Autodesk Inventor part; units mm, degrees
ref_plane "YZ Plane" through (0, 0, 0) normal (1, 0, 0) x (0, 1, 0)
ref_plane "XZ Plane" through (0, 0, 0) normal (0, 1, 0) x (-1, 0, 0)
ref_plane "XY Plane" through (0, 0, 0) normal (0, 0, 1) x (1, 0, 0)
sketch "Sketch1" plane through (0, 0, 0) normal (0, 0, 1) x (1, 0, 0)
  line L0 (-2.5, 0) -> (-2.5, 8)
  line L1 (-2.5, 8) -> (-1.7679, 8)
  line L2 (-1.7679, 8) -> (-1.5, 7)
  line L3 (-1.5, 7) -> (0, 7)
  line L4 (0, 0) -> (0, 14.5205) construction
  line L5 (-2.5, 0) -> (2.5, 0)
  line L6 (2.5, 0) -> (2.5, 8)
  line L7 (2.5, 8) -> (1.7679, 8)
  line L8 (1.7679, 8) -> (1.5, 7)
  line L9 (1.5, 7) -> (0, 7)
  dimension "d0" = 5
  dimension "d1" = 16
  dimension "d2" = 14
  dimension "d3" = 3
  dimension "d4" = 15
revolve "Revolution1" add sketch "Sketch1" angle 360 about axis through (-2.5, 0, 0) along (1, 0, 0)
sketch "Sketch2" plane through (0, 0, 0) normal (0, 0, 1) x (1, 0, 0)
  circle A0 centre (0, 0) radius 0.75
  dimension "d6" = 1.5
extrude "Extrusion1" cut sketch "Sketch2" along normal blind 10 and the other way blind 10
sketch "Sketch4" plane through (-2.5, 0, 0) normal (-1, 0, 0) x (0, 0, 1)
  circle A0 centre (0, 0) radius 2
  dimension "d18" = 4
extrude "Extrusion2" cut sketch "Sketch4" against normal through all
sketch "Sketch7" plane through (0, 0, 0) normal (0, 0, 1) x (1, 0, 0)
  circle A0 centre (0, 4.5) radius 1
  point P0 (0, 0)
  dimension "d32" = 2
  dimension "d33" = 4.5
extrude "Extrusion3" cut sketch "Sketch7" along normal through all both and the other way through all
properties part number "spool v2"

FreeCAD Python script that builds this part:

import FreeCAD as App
import Part
import Sketcher
from FreeCAD import Vector
Q = App.Units.Quantity


def add_polygon(sketch, points):
    """Adds a closed chain of lines whose ends are joined by coincident constraints."""
    first, n = sketch.GeometryCount, len(points)
    for a, b in zip(points, points[1:] + points[:1]):
        sketch.addGeometry(Part.LineSegment(App.Vector(*a, 0), App.Vector(*b, 0)), False)
    for i in range(n):
        sketch.addConstraint(Sketcher.Constraint("Coincident", first + i, 2, first + (i + 1) % n, 1))

doc = App.newDocument("Part")
body = doc.addObject("PartDesign::Body", "Body")

# Sketch on XY plane
sketch1 = body.newObject("Sketcher::SketchObject", "Sketch")
sketch1.AttachmentSupport = (doc.getObject("XY_Plane"), [""])
sketch1.MapMode = "FlatFace"
add_polygon(sketch1, [(-2.5, 8), (-2.5, 0), (2.5, 0), (2.5, 8), (1.8, 8), (1.5, 7), (-1.5, 7), (-1.8, 8)])  # lines 0-7
sketch1.addConstraint([
    Sketcher.Constraint("Vertical", 0),
    Sketcher.Constraint("Horizontal", 1),
    Sketcher.Constraint("Vertical", 2),
    Sketcher.Constraint("Horizontal", 3),
    Sketcher.Constraint("Horizontal", 5),
    Sketcher.Constraint("Horizontal", 7),
    Sketcher.Constraint("Symmetric", 0, 2, 1, 2, -1, 1),
    Sketcher.Constraint("Symmetric", 3, 2, 6, 2, -2),
    Sketcher.Constraint("Equal", 4, 6),
    Sketcher.Constraint("DistanceX", 1, 1, 1, 2, Q("5 mm")),
    Sketcher.Constraint("DistanceX", 5, 2, 5, 1, Q("3 mm")),
    Sketcher.Constraint("DistanceY", 0, 2, 0, 1, Q("8 mm")),
    Sketcher.Constraint("DistanceY", -1, 1, 4, 2, Q("7 mm")),
    Sketcher.Constraint("DistanceX", 3, 2, 3, 1, Q("0.732 mm")),
])
revolution = body.newObject("PartDesign::Revolution", "Revolution")
revolution.Profile = sketch1
revolution.ReferenceAxis = (sketch1, ["H_Axis"])
revolution.Angle = 360

# Sketch on XY plane
sketch2 = body.newObject("Sketcher::SketchObject", "Sketch001")
sketch2.AttachmentSupport = (doc.getObject("XY_Plane"), [""])
sketch2.MapMode = "FlatFace"
sketch2.addGeometry(Part.Circle(Vector(0, 0, 0), Vector(0, 0, 1), 0.8), False)
sketch2.addConstraint([
    Sketcher.Constraint("Coincident", 0, 3, -1, 1),
    Sketcher.Constraint("Diameter", 0, Q("1.5 mm")),
])
pocket1 = body.newObject("PartDesign::Pocket", "Pocket")
pocket1.Profile = sketch2
pocket1.Type = "ThroughAll"
pocket1.Midplane = True

# Sketch on YZ plane
sketch3 = body.newObject("Sketcher::SketchObject", "Sketch002")
sketch3.AttachmentSupport = (doc.getObject("YZ_Plane"), [""])
sketch3.MapMode = "FlatFace"
sketch3.AttachmentOffset = App.Placement(Vector(0, 0, -2.5), App.Rotation())
sketch3.addGeometry(Part.Circle(Vector(0, 0, 0), Vector(0, 0, 1), 2), False)
sketch3.addConstraint([
    Sketcher.Constraint("Coincident", 0, 3, -1, 1),
    Sketcher.Constraint("Diameter", 0, Q("4 mm")),
])
pocket2 = body.newObject("PartDesign::Pocket", "Pocket001")
pocket2.Profile = sketch3
pocket2.Type = "ThroughAll"
pocket2.Reversed = True

# Sketch on XY plane
sketch4 = body.newObject("Sketcher::SketchObject", "Sketch003")
sketch4.AttachmentSupport = (doc.getObject("XY_Plane"), [""])
sketch4.MapMode = "FlatFace"
sketch4.addGeometry(Part.Circle(Vector(0, 4.5, 0), Vector(0, 0, 1), 1), False)
sketch4.addConstraint([
    Sketcher.Constraint("PointOnObject", 0, 3, -2),
    Sketcher.Constraint("Diameter", 0, Q("2 mm")),
    Sketcher.Constraint("DistanceY", -1, 1, 0, 3, Q("4.5 mm")),
])
pocket3 = body.newObject("PartDesign::Pocket", "Pocket002")
pocket3.Profile = sketch4
pocket3.Type = "ThroughAll"
pocket3.Midplane = True

doc.recompute()
